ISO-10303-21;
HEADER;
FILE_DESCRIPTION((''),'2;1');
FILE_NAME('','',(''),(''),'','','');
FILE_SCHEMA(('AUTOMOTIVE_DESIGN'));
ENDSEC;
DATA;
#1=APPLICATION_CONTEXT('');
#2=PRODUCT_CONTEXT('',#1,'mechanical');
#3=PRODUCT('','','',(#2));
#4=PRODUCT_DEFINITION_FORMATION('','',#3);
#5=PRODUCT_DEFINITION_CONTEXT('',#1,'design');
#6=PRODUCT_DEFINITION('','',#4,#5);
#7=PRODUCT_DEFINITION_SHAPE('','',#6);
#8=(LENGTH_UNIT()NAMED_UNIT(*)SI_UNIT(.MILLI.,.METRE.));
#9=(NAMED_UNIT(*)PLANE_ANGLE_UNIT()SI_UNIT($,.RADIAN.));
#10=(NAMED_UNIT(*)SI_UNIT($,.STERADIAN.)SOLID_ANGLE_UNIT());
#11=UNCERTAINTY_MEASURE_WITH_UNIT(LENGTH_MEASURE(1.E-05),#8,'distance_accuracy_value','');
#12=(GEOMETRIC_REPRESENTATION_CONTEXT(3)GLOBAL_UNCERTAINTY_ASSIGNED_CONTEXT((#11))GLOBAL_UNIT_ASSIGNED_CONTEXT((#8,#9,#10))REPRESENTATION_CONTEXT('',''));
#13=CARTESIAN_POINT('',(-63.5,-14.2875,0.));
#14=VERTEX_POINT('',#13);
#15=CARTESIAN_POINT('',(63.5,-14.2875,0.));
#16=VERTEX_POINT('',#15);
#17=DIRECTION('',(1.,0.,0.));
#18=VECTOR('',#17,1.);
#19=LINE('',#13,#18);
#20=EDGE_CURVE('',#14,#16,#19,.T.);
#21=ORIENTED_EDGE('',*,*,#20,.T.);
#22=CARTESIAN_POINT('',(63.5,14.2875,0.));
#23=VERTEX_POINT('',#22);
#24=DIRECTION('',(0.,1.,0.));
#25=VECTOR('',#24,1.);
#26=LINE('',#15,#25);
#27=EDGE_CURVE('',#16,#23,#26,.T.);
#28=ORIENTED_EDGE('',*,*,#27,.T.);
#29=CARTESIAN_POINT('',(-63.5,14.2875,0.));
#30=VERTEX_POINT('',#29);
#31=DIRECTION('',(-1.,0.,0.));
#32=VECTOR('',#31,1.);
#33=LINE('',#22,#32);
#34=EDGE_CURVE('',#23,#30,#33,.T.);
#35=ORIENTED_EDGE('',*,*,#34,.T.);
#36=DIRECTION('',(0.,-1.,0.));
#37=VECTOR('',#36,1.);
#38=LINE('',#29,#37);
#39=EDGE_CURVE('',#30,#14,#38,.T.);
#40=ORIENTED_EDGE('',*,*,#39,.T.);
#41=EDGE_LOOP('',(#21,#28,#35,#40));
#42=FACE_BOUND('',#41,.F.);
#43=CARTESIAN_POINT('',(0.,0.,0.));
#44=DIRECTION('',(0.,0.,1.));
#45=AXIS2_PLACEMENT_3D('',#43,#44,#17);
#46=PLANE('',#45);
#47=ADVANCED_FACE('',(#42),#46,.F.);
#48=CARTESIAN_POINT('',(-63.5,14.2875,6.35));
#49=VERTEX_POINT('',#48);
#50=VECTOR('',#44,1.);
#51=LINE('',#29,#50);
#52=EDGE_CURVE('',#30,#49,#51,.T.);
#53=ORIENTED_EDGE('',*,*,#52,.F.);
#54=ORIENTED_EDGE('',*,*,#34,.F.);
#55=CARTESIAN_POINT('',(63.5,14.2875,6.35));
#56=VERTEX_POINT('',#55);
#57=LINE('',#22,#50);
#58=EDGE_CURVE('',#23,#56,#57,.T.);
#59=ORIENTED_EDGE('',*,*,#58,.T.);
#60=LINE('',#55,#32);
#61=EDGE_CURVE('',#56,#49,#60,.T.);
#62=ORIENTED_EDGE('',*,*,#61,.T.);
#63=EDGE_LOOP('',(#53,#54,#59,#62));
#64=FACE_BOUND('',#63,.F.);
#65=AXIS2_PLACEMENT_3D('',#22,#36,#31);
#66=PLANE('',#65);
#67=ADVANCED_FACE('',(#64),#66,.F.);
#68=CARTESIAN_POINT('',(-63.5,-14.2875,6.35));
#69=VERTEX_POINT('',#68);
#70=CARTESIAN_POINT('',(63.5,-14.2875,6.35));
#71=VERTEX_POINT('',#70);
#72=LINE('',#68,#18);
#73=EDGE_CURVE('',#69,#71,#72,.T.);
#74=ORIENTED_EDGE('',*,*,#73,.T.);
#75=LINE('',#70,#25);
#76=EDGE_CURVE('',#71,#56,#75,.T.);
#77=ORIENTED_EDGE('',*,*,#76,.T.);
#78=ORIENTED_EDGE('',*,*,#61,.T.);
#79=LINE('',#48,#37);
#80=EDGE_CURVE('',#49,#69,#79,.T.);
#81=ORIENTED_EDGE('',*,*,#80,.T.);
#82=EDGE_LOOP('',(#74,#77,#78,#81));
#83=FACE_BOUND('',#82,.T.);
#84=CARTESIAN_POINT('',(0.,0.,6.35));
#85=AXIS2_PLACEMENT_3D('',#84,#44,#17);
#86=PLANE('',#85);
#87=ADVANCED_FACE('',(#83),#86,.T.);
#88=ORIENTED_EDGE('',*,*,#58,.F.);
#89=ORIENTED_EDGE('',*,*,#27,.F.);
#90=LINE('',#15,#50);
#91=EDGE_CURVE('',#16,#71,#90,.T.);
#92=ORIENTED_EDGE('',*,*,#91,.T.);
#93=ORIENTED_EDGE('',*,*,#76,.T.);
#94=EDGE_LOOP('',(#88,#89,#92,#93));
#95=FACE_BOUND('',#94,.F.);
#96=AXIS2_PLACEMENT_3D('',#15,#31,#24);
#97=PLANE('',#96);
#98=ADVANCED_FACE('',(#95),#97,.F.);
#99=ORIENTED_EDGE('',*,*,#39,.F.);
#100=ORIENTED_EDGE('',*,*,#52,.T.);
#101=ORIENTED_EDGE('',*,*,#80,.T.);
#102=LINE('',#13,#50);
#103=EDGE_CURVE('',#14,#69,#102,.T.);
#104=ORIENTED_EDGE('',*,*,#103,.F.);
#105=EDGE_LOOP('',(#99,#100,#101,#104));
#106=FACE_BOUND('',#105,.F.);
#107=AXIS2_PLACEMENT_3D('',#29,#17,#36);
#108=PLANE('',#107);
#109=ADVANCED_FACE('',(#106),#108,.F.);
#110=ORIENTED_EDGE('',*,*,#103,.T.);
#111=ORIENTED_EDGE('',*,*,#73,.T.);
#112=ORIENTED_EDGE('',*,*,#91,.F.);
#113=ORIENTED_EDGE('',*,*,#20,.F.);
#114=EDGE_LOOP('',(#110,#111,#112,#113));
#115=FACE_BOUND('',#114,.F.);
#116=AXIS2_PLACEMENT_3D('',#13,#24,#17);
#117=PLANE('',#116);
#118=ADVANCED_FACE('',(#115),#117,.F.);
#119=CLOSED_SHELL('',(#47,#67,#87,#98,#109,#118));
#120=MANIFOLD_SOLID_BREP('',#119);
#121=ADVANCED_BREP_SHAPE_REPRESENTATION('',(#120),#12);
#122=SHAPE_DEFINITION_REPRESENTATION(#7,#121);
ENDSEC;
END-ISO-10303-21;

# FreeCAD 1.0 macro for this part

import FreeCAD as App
import Part
import Sketcher
from FreeCAD import Vector
Q = App.Units.Quantity


def add_polygon(sketch, points):
    """Adds a closed chain of lines whose ends are joined by coincident constraints."""
    first, n = sketch.GeometryCount, len(points)
    for a, b in zip(points, points[1:] + points[:1]):
        sketch.addGeometry(Part.LineSegment(App.Vector(*a, 0), App.Vector(*b, 0)), False)
    for i in range(n):
        sketch.addConstraint(Sketcher.Constraint("Coincident", first + i, 2, first + (i + 1) % n, 1))

doc = App.newDocument("Part")
body = doc.addObject("PartDesign::Body", "Body")

sketch1 = body.newObject("Sketcher::SketchObject", "Sketch")
sketch1.AttachmentSupport = (doc.getObject("XY_Plane"), [""])
sketch1.MapMode = "FlatFace"
add_polygon(sketch1, [(-64, 14), (-64, -14), (64, -14), (64, 14)])
sketch1.addConstraint([
    Sketcher.Constraint("Vertical", 0),
    Sketcher.Constraint("Horizontal", 1),
    Sketcher.Constraint("Vertical", 2),
    Sketcher.Constraint("Horizontal", 3),
    Sketcher.Constraint("Symmetric", 0, 2, 2, 2, -1, 1),
    Sketcher.Constraint("DistanceX", 1, 1, 1, 2, Q("5 in")),
    Sketcher.Constraint("DistanceY", 0, 2, 0, 1, Q("1.125 in")),
])
pad1 = body.newObject("PartDesign::Pad", "Pad")
pad1.Profile = sketch1
pad1.Length = Q("0.25 in")

doc.recompute()
